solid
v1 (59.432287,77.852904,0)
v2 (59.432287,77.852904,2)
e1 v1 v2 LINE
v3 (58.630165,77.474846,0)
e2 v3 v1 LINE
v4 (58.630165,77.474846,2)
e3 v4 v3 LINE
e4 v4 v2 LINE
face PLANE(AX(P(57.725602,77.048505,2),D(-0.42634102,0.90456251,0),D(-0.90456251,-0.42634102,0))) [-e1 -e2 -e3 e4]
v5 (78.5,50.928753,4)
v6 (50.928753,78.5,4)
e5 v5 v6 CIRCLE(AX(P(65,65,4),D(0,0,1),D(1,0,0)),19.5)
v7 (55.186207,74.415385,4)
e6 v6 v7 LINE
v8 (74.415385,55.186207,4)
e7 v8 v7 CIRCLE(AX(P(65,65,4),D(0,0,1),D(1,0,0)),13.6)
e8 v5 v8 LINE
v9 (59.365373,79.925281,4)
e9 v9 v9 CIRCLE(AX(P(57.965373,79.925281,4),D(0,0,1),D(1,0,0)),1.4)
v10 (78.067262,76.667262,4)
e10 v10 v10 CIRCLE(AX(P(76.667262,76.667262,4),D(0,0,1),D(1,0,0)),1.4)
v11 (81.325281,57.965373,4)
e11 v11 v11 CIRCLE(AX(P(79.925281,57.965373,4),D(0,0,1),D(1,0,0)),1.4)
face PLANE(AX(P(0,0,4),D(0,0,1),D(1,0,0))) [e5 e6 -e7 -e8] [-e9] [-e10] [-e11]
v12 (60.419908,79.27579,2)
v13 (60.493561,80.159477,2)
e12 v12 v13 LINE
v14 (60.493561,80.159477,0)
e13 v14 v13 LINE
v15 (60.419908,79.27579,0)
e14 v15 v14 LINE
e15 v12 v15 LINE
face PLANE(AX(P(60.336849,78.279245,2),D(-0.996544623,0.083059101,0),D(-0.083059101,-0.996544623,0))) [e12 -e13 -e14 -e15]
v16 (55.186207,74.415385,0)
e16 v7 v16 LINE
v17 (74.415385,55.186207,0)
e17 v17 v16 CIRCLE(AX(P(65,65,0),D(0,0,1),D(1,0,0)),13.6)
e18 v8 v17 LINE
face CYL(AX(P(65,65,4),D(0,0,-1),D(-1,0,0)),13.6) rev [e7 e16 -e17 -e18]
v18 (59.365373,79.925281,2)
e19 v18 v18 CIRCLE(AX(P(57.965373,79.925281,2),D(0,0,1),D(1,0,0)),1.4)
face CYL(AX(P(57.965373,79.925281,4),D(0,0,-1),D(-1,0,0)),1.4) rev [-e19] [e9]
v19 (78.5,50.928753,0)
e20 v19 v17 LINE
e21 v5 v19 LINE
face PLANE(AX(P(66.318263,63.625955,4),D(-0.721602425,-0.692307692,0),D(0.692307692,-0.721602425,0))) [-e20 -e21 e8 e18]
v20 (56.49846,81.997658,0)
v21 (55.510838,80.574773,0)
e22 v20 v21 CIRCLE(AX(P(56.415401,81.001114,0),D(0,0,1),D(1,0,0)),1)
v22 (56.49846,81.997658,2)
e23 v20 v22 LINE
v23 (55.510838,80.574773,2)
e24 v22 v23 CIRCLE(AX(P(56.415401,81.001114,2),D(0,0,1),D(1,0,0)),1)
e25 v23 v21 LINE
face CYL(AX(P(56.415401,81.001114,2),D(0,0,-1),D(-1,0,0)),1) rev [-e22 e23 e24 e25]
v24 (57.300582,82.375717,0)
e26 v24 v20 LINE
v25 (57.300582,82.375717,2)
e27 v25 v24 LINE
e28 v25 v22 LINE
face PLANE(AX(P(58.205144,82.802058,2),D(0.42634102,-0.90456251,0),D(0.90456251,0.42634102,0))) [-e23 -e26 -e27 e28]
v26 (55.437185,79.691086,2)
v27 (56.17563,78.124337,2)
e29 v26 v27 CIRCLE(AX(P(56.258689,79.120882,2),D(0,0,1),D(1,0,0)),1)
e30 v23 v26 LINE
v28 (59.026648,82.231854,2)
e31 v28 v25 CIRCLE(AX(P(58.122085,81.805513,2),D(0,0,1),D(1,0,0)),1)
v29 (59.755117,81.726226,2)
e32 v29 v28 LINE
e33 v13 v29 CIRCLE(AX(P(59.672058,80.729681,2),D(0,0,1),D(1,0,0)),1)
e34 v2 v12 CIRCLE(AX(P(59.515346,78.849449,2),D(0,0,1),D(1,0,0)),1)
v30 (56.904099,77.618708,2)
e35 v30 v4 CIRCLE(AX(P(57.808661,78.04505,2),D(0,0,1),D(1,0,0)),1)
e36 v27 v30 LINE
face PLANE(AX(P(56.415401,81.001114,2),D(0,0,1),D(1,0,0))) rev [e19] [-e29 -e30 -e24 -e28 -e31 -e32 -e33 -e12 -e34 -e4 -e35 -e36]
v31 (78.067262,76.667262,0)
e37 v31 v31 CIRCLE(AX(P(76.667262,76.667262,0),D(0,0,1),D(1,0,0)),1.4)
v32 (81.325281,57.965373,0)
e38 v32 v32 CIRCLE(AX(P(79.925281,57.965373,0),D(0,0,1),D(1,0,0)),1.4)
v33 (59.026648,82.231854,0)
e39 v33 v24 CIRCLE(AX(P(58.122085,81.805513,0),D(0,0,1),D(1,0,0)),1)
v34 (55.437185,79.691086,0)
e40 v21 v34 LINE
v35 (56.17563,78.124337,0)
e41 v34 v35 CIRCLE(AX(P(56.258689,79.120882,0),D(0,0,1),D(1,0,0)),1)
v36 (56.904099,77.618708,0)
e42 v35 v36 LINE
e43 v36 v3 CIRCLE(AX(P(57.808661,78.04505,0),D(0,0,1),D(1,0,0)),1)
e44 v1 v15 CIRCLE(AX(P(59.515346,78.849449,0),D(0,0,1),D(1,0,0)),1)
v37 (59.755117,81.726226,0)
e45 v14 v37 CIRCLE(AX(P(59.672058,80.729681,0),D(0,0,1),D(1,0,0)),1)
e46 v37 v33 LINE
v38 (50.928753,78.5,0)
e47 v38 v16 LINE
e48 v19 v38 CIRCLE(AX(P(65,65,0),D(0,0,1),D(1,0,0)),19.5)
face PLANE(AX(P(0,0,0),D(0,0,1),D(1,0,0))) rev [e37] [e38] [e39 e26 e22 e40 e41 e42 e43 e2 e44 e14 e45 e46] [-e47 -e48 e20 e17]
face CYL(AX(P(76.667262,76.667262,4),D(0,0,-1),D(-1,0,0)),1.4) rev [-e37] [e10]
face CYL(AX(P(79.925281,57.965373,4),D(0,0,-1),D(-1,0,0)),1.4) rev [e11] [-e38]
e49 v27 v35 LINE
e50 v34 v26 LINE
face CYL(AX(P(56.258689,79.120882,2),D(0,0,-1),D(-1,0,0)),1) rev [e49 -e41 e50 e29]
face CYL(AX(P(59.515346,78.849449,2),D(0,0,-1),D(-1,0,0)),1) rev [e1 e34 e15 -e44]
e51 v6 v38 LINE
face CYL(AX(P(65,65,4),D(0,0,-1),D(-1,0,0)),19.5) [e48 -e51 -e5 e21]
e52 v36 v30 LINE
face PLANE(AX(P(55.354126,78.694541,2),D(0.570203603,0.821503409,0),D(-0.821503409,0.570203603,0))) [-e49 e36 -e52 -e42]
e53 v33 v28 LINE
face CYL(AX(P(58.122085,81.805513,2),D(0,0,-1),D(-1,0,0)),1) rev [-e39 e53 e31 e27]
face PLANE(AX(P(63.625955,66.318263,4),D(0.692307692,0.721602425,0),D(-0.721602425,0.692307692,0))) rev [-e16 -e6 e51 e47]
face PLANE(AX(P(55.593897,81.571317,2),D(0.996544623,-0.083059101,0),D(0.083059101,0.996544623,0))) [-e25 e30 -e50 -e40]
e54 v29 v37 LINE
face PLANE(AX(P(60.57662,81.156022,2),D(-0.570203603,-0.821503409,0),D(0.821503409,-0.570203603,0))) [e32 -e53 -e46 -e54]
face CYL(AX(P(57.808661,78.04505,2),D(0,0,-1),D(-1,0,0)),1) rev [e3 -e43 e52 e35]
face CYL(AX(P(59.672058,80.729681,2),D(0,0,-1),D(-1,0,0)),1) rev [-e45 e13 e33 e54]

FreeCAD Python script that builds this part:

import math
import FreeCAD as App
import Part
import Sketcher
from FreeCAD import Vector
Q = App.Units.Quantity

doc = App.newDocument("Part")
body = doc.addObject("PartDesign::Body", "Body")

# Sketch on XY plane
sketch1 = body.newObject("Sketcher::SketchObject", "Sketch")
sketch1.AttachmentSupport = (doc.getObject("XY_Plane"), [""])
sketch1.MapMode = "FlatFace"
sketch1.addGeometry(Part.LineSegment(Vector(74.4, 55.2, 0), Vector(78.5, 50.9, 0)), False)
sketch1.addGeometry(Part.ArcOfCircle(Part.Circle(Vector(65, 65, 0), Vector(0, 0, 1), 19.5), math.radians(-46), math.radians(136)), False)
sketch1.addGeometry(Part.LineSegment(Vector(50.9, 78.5, 0), Vector(55.2, 74.4, 0)), False)
sketch1.addGeometry(Part.ArcOfCircle(Part.Circle(Vector(65, 65, 0), Vector(0, 0, 1), 13.6), math.radians(0), math.radians(136)), False)
sketch1.addGeometry(Part.ArcOfCircle(Part.Circle(Vector(65, 65, 0), Vector(0, 0, 1), 13.6), math.radians(-46), math.radians(0)), False)
sketch1.addGeometry(Part.Circle(Vector(79.9, 58, 0), Vector(0, 0, 1), 1.4), False)
sketch1.addGeometry(Part.Circle(Vector(58, 79.9, 0), Vector(0, 0, 1), 1.4), False)
sketch1.addGeometry(Part.Circle(Vector(76.7, 76.7, 0), Vector(0, 0, 1), 1.4), False)
sketch1.addConstraint(Sketcher.Constraint("Coincident", 0, 2, 1, 1))
sketch1.addConstraint(Sketcher.Constraint("Coincident", 1, 2, 2, 1))
sketch1.addConstraint(Sketcher.Constraint("Coincident", 2, 2, 3, 2))
sketch1.addConstraint(Sketcher.Constraint("Tangent", 3, 1, 4, 2))
sketch1.addConstraint(Sketcher.Constraint("Coincident", 4, 1, 0, 1))
sketch1.addConstraint(Sketcher.Constraint("Coincident", 3, 3, 1, 3))
sketch1.addConstraint(Sketcher.Constraint("Equal", 3, 4))
sketch1.addConstraint(Sketcher.Constraint("Equal", 5, 6))
sketch1.addConstraint(Sketcher.Constraint("Equal", 6, 7))
sketch1.addConstraint(Sketcher.Constraint("Horizontal", 4, 3, 3, 1))
sketch1.addConstraint(Sketcher.Constraint("Diameter", 5, Q("2.8 mm")))
sketch1.addConstraint(Sketcher.Constraint("Radius", 1, Q("19.5 mm")))
sketch1.addConstraint(Sketcher.Constraint("Radius", 3, Q("13.6 mm")))
sketch1.addConstraint(Sketcher.Constraint("DistanceX", -1, 1, 1, 3, Q("65 mm")))
sketch1.addConstraint(Sketcher.Constraint("DistanceY", -1, 1, 1, 3, Q("65 mm")))
sketch1.addConstraint(Sketcher.Constraint("DistanceX", -1, 1, 0, 2, Q("78.5 mm")))
sketch1.addConstraint(Sketcher.Constraint("DistanceY", -1, 1, 1, 2, Q("78.5 mm")))
sketch1.addConstraint(Sketcher.Constraint("DistanceX", -1, 1, 5, 3, Q("79.925281 mm")))
sketch1.addConstraint(Sketcher.Constraint("DistanceY", -1, 1, 6, 3, Q("79.925281 mm")))
sketch1.addConstraint(Sketcher.Constraint("DistanceX", -1, 1, 7, 3, Q("76.667262 mm")))
sketch1.addConstraint(Sketcher.Constraint("DistanceY", -1, 1, 7, 3, Q("76.667262 mm")))
sketch1.addConstraint(Sketcher.Constraint("DistanceX", 6, 3, 5, 3, Q("21.959908 mm")))
sketch1.addConstraint(Sketcher.Constraint("DistanceY", 5, 3, 6, 3, Q("21.959908 mm")))
sketch1.addConstraint(Sketcher.Constraint("DistanceX", -1, 1, 2, 2, Q("55.186207 mm")))
sketch1.addConstraint(Sketcher.Constraint("DistanceX", -1, 1, 4, 1, Q("74.415385 mm")))
pad1 = body.newObject("PartDesign::Pad", "Pad")
pad1.Profile = sketch1
pad1.Length = 4

# Sketch on XY plane
sketch2 = body.newObject("Sketcher::SketchObject", "Sketch001")
sketch2.AttachmentSupport = (doc.getObject("XY_Plane"), [""])
sketch2.MapMode = "FlatFace"
sketch2.addGeometry(Part.LineSegment(Vector(58.6, 77.5, 0), Vector(59.4, 77.9, 0)), False)
sketch2.addGeometry(Part.ArcOfCircle(Part.Circle(Vector(59.5, 78.8, 0), Vector(0, 0, 1), 1), math.radians(-95), math.radians(25)), False)
sketch2.addGeometry(Part.LineSegment(Vector(60.4, 79.3, 0), Vector(60.5, 80.2, 0)), False)
sketch2.addGeometry(Part.ArcOfCircle(Part.Circle(Vector(59.7, 80.7, 0), Vector(0, 0, 1), 1), math.radians(-35), math.radians(85)), False)
sketch2.addGeometry(Part.LineSegment(Vector(59.8, 81.7, 0), Vector(59, 82.2, 0)), False)
sketch2.addGeometry(Part.ArcOfCircle(Part.Circle(Vector(58.1, 81.8, 0), Vector(0, 0, 1), 1), math.radians(25), math.radians(145)), False)
sketch2.addGeometry(Part.LineSegment(Vector(57.3, 82.4, 0), Vector(56.5, 82, 0)), False)
sketch2.addGeometry(Part.ArcOfCircle(Part.Circle(Vector(56.4, 81, 0), Vector(0, 0, 1), 1), math.radians(85), math.radians(205)), False)
sketch2.addGeometry(Part.LineSegment(Vector(55.5, 80.6, 0), Vector(55.4, 79.7, 0)), False)
sketch2.addGeometry(Part.ArcOfCircle(Part.Circle(Vector(56.3, 79.1, 0), Vector(0, 0, 1), 1), math.radians(145), math.radians(265)), False)
sketch2.addGeometry(Part.LineSegment(Vector(56.2, 78.1, 0), Vector(56.9, 77.6, 0)), False)
sketch2.addGeometry(Part.ArcOfCircle(Part.Circle(Vector(57.8, 78, 0), Vector(0, 0, 1), 1), math.radians(-155), math.radians(-35)), False)
sketch2.addConstraint(Sketcher.Constraint("Coincident", 0, 2, 1, 1))
sketch2.addConstraint(Sketcher.Constraint("Coincident", 1, 2, 2, 1))
sketch2.addConstraint(Sketcher.Constraint("Coincident", 2, 2, 3, 1))
sketch2.addConstraint(Sketcher.Constraint("Coincident", 3, 2, 4, 1))
sketch2.addConstraint(Sketcher.Constraint("Coincident", 4, 2, 5, 1))
sketch2.addConstraint(Sketcher.Constraint("Coincident", 5, 2, 6, 1))
sketch2.addConstraint(Sketcher.Constraint("Coincident", 6, 2, 7, 1))
sketch2.addConstraint(Sketcher.Constraint("Coincident", 7, 2, 8, 1))
sketch2.addConstraint(Sketcher.Constraint("Coincident", 8, 2, 9, 1))
sketch2.addConstraint(Sketcher.Constraint("Coincident", 9, 2, 10, 1))
sketch2.addConstraint(Sketcher.Constraint("Coincident", 10, 2, 11, 1))
sketch2.addConstraint(Sketcher.Constraint("Coincident", 11, 2, 0, 1))
sketch2.addConstraint(Sketcher.Constraint("Equal", 1, 3))
sketch2.addConstraint(Sketcher.Constraint("Equal", 3, 5))
sketch2.addConstraint(Sketcher.Constraint("Equal", 5, 7))
sketch2.addConstraint(Sketcher.Constraint("Equal", 7, 9))
sketch2.addConstraint(Sketcher.Constraint("Equal", 9, 11))
sketch2.addConstraint(Sketcher.Constraint("Parallel", 0, 6))
sketch2.addConstraint(Sketcher.Constraint("Parallel", 2, 8))
sketch2.addConstraint(Sketcher.Constraint("Parallel", 4, 10))
sketch2.addConstraint(Sketcher.Constraint("Equal", 0, 2))
sketch2.addConstraint(Sketcher.Constraint("Equal", 2, 4))
sketch2.addConstraint(Sketcher.Constraint("Equal", 4, 6))
sketch2.addConstraint(Sketcher.Constraint("Equal", 6, 8))
sketch2.addConstraint(Sketcher.Constraint("Equal", 8, 10))
sketch2.addConstraint(Sketcher.Constraint("Radius", 1, Q("1 mm")))
sketch2.addConstraint(Sketcher.Constraint("DistanceX", -1, 1, 7, 3, Q("56.415401 mm")))
sketch2.addConstraint(Sketcher.Constraint("DistanceX", -1, 1, 10, 2, Q("56.904099 mm")))
sketch2.addConstraint(Sketcher.Constraint("DistanceY", 7, 3, 5, 3, Q("0.804399 mm")))
sketch2.addConstraint(Sketcher.Constraint("DistanceY", 9, 3, 3, 3, Q("1.608799 mm")))
sketch2.addConstraint(Sketcher.Constraint("DistanceY", 11, 3, 1, 3, Q("0.804399 mm")))
sketch2.addConstraint(Sketcher.Constraint("DistanceX", 9, 3, 0, 2, Q("3.173598 mm")))
sketch2.addConstraint(Sketcher.Constraint("DistanceX", 5, 3, 0, 2, Q("1.310202 mm")))
sketch2.addConstraint(Sketcher.Constraint("Distance", 0, Q("0.886751 mm")))
sketch2.addConstraint(Sketcher.Constraint("DistanceY", -1, 1, 1, 3, Q("78.849449 mm")))
sketch2.addConstraint(Sketcher.Constraint("DistanceY", -1, 1, 3, 3, Q("80.729681 mm")))
sketch2.addConstraint(Sketcher.Constraint("DistanceX", -1, 1, 9, 3, Q("56.258689 mm")))
sketch2.addConstraint(Sketcher.Constraint("DistanceX", -1, 1, 11, 3, Q("57.808661 mm")))
sketch2.addConstraint(Sketcher.Constraint("DistanceX", -1, 1, 1, 2, Q("60.419908 mm")))
sketch2.addConstraint(Sketcher.Constraint("DistanceY", -1, 1, 1, 2, Q("79.27579 mm")))
sketch2.addConstraint(Sketcher.Constraint("DistanceX", -1, 1, 2, 2, Q("60.493561 mm")))
sketch2.addConstraint(Sketcher.Constraint("DistanceY", -1, 1, 6, 2, Q("81.997658 mm")))
pocket1 = body.newObject("PartDesign::Pocket", "Pocket")
pocket1.Profile = sketch2
pocket1.Length = 2
pocket1.Reversed = True

doc.recompute()
